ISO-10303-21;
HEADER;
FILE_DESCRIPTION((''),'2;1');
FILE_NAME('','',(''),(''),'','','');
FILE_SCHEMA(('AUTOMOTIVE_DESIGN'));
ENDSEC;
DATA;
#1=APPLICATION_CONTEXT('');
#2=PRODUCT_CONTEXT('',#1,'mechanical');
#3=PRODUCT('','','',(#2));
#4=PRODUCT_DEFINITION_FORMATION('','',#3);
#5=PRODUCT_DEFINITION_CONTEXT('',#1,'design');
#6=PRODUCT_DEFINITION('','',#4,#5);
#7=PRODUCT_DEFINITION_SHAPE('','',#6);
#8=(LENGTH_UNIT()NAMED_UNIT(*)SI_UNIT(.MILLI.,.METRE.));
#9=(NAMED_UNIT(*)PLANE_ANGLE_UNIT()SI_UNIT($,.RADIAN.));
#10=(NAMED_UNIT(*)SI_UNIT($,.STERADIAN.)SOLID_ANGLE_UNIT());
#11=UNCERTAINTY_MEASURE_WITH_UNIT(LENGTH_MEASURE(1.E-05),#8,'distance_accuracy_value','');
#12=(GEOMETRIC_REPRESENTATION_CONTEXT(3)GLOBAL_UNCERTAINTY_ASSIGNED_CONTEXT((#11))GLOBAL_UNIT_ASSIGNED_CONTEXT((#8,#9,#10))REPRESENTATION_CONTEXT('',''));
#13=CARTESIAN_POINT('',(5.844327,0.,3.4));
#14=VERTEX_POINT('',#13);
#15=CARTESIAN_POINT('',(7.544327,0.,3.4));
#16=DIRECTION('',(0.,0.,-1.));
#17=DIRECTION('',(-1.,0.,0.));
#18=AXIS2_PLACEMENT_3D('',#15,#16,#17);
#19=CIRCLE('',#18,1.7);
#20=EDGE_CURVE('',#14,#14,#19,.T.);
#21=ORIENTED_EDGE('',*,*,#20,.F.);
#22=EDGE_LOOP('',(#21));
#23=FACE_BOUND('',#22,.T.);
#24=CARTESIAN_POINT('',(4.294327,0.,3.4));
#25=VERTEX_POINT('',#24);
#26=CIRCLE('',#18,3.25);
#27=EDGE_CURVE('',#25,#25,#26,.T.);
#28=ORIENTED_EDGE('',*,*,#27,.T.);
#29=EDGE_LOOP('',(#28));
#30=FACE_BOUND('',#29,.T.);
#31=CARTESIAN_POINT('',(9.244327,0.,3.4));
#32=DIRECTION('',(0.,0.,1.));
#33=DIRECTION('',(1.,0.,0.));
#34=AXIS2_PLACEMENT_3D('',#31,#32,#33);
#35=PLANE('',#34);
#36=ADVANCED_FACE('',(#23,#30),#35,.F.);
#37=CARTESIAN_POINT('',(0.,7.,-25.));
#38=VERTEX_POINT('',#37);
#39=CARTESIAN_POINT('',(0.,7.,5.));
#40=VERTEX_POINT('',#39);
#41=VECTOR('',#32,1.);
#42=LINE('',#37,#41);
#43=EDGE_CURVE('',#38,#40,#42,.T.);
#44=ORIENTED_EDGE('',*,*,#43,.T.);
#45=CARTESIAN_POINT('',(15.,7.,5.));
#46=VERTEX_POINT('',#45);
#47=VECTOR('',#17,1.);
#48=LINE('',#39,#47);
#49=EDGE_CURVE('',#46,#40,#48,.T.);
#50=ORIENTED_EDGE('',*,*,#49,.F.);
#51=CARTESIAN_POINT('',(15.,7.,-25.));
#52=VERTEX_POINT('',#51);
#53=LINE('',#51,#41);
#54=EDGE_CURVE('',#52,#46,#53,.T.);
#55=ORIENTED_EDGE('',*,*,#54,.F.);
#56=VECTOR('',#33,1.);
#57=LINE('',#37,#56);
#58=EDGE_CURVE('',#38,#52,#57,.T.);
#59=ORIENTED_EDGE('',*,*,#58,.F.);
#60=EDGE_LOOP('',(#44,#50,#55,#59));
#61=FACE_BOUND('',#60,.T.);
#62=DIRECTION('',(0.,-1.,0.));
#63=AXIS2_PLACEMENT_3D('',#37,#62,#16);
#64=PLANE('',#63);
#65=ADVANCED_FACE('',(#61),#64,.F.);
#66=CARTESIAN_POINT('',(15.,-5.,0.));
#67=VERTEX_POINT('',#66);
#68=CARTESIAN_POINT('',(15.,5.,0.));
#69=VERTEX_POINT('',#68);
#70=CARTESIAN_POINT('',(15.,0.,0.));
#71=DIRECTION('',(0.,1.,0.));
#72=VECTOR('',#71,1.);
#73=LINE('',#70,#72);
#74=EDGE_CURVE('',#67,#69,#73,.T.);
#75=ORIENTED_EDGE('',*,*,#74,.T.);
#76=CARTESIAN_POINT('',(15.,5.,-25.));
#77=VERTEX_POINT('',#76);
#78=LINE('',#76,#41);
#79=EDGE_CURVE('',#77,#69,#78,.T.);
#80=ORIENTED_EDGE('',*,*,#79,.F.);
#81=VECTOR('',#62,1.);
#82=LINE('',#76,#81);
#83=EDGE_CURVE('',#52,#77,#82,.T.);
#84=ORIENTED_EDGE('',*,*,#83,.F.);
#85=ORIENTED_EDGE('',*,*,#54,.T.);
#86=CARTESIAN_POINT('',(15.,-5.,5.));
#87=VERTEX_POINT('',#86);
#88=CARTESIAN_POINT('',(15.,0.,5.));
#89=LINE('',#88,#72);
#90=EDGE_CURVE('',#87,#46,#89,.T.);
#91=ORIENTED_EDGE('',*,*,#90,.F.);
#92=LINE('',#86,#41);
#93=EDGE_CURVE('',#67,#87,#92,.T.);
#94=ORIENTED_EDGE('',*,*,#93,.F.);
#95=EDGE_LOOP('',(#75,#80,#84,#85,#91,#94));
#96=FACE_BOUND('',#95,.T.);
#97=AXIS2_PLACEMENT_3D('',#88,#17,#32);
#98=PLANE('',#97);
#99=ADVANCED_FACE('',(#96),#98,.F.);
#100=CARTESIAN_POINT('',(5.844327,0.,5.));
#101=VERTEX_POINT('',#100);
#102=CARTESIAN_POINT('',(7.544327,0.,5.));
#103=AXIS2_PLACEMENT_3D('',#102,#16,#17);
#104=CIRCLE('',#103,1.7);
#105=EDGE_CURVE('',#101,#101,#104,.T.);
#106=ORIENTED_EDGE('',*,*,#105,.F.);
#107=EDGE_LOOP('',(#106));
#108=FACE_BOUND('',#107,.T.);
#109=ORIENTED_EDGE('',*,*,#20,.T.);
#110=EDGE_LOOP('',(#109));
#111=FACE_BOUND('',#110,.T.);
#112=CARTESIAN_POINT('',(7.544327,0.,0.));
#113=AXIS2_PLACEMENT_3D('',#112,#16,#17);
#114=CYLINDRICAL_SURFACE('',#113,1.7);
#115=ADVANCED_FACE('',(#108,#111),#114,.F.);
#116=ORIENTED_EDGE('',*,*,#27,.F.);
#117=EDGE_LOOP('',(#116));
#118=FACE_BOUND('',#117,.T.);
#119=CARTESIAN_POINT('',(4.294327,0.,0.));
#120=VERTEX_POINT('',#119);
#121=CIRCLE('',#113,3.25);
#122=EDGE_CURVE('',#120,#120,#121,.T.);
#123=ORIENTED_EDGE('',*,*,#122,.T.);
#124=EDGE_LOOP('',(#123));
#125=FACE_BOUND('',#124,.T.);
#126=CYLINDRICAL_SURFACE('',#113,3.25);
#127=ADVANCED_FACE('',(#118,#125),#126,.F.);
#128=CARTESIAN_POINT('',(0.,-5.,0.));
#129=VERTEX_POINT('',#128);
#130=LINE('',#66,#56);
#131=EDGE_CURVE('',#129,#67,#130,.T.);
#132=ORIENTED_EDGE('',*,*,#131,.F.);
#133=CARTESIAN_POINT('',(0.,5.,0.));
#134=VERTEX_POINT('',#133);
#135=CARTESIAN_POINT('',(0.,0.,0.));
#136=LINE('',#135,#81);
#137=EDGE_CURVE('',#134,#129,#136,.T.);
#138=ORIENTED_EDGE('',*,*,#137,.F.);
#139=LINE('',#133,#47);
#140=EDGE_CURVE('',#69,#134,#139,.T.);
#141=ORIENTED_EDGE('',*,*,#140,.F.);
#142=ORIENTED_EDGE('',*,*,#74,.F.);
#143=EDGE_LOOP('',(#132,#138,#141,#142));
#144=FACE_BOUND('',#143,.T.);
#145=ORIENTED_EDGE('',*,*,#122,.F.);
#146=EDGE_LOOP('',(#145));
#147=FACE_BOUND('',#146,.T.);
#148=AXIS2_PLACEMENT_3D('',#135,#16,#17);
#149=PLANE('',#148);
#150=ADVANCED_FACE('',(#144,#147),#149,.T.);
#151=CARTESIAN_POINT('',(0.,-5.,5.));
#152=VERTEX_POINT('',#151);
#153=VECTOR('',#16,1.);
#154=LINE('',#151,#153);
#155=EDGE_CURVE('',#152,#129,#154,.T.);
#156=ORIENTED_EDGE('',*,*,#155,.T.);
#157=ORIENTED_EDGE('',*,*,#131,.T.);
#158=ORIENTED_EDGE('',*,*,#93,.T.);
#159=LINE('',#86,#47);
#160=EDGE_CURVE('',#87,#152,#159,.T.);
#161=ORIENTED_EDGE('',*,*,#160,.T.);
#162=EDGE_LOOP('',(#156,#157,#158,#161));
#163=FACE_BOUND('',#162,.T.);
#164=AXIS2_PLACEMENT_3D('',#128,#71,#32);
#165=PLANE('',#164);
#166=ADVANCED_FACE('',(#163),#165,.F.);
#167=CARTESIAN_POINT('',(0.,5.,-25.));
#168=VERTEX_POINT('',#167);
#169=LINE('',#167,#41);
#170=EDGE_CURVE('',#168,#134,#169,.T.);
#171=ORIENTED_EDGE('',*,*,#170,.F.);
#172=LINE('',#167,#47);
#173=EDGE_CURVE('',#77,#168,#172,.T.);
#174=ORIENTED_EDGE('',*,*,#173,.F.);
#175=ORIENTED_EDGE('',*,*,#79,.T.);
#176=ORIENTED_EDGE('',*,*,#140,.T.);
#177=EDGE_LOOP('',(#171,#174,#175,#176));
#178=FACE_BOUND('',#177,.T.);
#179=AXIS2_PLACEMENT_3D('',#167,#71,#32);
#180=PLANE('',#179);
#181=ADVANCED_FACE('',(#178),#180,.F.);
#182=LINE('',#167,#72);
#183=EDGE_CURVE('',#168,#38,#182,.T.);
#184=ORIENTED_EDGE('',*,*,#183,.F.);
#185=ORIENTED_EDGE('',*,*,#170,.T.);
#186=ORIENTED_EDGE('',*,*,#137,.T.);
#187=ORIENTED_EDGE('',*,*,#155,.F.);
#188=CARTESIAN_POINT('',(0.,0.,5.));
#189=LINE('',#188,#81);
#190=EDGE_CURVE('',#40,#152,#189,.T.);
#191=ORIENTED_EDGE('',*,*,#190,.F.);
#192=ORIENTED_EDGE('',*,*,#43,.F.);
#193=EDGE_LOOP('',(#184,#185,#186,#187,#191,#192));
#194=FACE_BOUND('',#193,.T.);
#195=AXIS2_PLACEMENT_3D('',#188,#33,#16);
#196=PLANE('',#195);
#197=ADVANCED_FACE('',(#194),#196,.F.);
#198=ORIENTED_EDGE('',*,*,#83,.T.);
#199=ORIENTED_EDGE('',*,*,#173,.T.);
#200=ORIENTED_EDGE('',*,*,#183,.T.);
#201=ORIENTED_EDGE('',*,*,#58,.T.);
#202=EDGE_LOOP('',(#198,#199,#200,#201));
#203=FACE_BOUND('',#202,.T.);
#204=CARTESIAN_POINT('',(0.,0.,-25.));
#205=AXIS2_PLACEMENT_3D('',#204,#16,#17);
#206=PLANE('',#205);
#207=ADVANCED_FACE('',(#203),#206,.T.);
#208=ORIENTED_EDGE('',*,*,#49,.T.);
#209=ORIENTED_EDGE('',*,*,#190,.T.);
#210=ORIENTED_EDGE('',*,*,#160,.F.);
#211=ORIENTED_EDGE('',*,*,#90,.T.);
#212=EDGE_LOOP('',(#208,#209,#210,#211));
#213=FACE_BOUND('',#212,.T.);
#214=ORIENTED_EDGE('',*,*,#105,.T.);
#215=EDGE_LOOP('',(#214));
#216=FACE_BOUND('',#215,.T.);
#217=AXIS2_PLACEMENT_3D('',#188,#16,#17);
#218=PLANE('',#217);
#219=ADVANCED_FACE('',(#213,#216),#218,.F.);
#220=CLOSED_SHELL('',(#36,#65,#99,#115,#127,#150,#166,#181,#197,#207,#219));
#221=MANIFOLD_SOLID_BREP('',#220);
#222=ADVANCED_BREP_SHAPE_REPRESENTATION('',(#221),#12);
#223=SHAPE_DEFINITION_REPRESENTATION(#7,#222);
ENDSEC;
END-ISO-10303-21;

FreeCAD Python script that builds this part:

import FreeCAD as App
import Part
import Sketcher


def add_polygon(sketch, points):
    """Adds a closed chain of lines whose ends are joined by coincident constraints."""
    first, n = sketch.GeometryCount, len(points)
    for a, b in zip(points, points[1:] + points[:1]):
        sketch.addGeometry(Part.LineSegment(App.Vector(*a, 0), App.Vector(*b, 0)), False)
    for i in range(n):
        sketch.addConstraint(Sketcher.Constraint("Coincident", first + i, 2, first + (i + 1) % n, 1))

doc = App.newDocument("Part")
body = doc.addObject("PartDesign::Body", "Body")

sketch1 = body.newObject("Sketcher::SketchObject", "Sketch")
sketch1.AttachmentSupport = (doc.getObject("XY_Plane"), [""])
sketch1.MapMode = "FlatFace"
add_polygon(sketch1, [(0, 12), (0, 0), (15, 0), (15, 12)])
sketch1.addConstraint([
    Sketcher.Constraint("Vertical", 0),
    Sketcher.Constraint("Horizontal", 1),
    Sketcher.Constraint("Vertical", 2),
    Sketcher.Constraint("Horizontal", 3),
    Sketcher.Constraint("Coincident", 0, 2, -1, 1),
    Sketcher.Constraint("DistanceX", 1, 1, 1, 2, 15.0),
    Sketcher.Constraint("DistanceY", 0, 2, 0, 1, 12.0),
])
pad1 = body.newObject("PartDesign::Pad", "Pad")
pad1.Profile = sketch1
pad1.Length = 5

sketch2 = body.newObject("Sketcher::SketchObject", "Sketch001")
sketch2.AttachmentSupport = (doc.getObject("XY_Plane"), [""])
sketch2.MapMode = "FlatFace"
add_polygon(sketch2, [(15, 7), (15, 5), (0, 5), (0, 7)])
sketch2.addConstraint([
    Sketcher.Constraint("Vertical", 0),
    Sketcher.Constraint("Horizontal", 1),
    Sketcher.Constraint("Vertical", 2),
    Sketcher.Constraint("Horizontal", 3),
    Sketcher.Constraint("PointOnObject", 1, 2, -2),
    Sketcher.Constraint("DistanceX", 1, 2, 1, 1, 15.0),
    Sketcher.Constraint("DistanceY", 0, 2, 0, 1, 2.0),
    Sketcher.Constraint("DistanceY", -1, 1, 0, 2, 5.0),
])
pad2 = body.newObject("PartDesign::Pad", "Pad001")
pad2.Profile = sketch2
pad2.Length = 25
pad2.Reversed = True

sketch3 = body.newObject("Sketcher::SketchObject", "Sketch002")
sketch3.AttachmentSupport = (doc.getObject("XY_Plane"), [""])
sketch3.MapMode = "FlatFace"
add_polygon(sketch3, [(15, 12), (15, 7), (0, 7), (0, 12)])
sketch3.addConstraint([
    Sketcher.Constraint("Vertical", 0),
    Sketcher.Constraint("Horizontal", 1),
    Sketcher.Constraint("Vertical", 2),
    Sketcher.Constraint("Horizontal", 3),
    Sketcher.Constraint("PointOnObject", 1, 2, -2),
    Sketcher.Constraint("DistanceX", 1, 2, 1, 1, 15.0),
    Sketcher.Constraint("DistanceY", 0, 2, 0, 1, 5.0),
    Sketcher.Constraint("DistanceY", -1, 1, 0, 2, 7.0),
])
pocket1 = body.newObject("PartDesign::Pocket", "Pocket")
pocket1.Profile = sketch3
pocket1.Type = "ThroughAll"
pocket1.Reversed = True

sketch4 = body.newObject("Sketcher::SketchObject", "Sketch003")
sketch4.AttachmentSupport = (doc.getObject("XZ_Plane"), [""])
sketch4.MapMode = "FlatFace"
add_polygon(sketch4, [(0, 5), (0, 0), (15, 0), (15, 5)])
sketch4.addConstraint([
    Sketcher.Constraint("Vertical", 0),
    Sketcher.Constraint("Horizontal", 1),
    Sketcher.Constraint("Vertical", 2),
    Sketcher.Constraint("Horizontal", 3),
    Sketcher.Constraint("Coincident", 0, 2, -1, 1),
    Sketcher.Constraint("DistanceX", 1, 1, 1, 2, 15.0),
    Sketcher.Constraint("DistanceY", 0, 2, 0, 1, 5.0),
])
pad3 = body.newObject("PartDesign::Pad", "Pad002")
pad3.Profile = sketch4
pad3.Length = 5

sketch5 = body.newObject("Sketcher::SketchObject", "Sketch004")
sketch5.AttachmentSupport = (doc.getObject("XY_Plane"), [""])
sketch5.MapMode = "FlatFace"
sketch5.addGeometry(Part.Circle(App.Vector(7.5, 0, 0), App.Vector(0, 0, 1), 1.7), False)
sketch5.addConstraint([
    Sketcher.Constraint("PointOnObject", 0, 3, -1),
    Sketcher.Constraint("Diameter", 0, 3.4),
    Sketcher.Constraint("DistanceX", -1, 1, 0, 3, 7.544327),
])
doc.recompute()
hole = body.newObject("PartDesign::Hole", "Hole")
hole.Profile = sketch5
hole.ThreadType = "None"
hole.Diameter = 3.4
hole.DepthType = "Dimension"
hole.Depth = 7.5
hole.DrillPoint = "Angled"
hole.DrillPointAngle = 118
hole.HoleCutType = "Counterbore"
hole.HoleCutDiameter = 6.5
hole.HoleCutDepth = 3.4
hole.Reversed = True

doc.recompute()
